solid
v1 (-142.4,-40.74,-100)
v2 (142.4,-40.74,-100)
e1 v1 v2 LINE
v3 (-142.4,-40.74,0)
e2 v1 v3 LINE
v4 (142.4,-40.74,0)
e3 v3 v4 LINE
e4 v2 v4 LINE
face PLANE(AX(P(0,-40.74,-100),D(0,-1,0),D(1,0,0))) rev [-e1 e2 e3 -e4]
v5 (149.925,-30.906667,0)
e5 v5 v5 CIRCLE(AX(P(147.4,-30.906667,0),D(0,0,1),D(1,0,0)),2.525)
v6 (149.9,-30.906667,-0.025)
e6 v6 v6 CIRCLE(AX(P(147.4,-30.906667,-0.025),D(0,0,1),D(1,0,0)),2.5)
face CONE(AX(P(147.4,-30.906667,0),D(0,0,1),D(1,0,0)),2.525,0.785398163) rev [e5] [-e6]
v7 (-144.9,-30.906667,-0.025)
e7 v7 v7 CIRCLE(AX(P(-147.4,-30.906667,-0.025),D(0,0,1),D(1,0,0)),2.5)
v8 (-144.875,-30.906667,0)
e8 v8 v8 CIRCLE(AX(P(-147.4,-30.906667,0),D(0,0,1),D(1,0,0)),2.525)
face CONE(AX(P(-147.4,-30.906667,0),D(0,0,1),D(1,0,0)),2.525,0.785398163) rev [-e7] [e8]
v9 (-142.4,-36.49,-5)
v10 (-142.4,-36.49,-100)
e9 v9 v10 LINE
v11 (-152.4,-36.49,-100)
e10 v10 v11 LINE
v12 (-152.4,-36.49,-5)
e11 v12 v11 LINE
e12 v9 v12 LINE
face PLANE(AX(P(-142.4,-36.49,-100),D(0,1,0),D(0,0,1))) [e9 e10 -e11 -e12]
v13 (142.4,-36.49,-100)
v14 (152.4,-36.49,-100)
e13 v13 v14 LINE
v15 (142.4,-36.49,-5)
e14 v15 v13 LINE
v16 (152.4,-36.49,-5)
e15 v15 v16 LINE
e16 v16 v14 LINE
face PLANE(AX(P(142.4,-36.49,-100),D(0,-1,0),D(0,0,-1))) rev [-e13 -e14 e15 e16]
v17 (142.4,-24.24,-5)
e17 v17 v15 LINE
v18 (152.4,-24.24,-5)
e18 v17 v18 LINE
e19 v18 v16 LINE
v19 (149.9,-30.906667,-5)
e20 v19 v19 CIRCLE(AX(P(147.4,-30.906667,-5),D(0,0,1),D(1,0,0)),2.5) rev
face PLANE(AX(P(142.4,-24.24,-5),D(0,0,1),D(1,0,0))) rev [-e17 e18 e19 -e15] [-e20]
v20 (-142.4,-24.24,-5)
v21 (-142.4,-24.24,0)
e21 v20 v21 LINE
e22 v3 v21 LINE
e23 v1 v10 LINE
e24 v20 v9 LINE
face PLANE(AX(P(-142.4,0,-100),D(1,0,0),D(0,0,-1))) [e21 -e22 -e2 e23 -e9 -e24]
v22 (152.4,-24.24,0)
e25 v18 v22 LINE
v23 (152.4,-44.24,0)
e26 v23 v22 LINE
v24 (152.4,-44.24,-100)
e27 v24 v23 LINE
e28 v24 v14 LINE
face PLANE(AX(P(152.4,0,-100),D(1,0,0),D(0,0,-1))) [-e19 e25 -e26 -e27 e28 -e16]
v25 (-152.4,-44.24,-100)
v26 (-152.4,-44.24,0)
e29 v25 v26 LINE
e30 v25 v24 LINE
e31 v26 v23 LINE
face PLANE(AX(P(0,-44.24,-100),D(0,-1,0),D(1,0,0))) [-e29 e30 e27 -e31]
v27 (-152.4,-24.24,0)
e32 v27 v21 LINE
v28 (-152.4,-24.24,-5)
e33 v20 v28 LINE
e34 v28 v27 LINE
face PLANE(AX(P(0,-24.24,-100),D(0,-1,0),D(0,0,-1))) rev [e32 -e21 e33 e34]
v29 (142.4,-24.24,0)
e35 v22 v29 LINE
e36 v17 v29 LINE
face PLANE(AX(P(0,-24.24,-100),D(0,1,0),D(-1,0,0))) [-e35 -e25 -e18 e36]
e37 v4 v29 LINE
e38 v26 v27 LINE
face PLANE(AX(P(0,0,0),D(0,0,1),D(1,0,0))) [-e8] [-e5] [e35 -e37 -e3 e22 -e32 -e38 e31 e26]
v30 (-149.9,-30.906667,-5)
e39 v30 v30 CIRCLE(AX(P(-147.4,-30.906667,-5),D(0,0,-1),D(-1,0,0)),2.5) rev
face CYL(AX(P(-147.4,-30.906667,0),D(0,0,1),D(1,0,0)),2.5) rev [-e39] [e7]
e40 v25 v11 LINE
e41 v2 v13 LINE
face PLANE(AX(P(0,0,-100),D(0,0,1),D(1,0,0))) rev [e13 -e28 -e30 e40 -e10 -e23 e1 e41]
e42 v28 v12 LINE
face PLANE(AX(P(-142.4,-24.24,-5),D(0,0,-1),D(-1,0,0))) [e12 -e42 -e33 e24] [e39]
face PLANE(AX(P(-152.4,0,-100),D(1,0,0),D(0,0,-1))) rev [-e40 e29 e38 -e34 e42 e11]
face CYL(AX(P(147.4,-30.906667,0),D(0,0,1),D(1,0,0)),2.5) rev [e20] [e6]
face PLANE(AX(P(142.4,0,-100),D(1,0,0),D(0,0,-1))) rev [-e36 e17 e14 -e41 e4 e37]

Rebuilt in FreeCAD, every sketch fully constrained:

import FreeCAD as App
import Part
import Sketcher
Q = App.Units.Quantity

doc = App.newDocument("Part")
body = doc.addObject("PartDesign::Body", "Body")

# Sketch on XY plane
sketch1 = body.newObject("Sketcher::SketchObject", "Sketch")
sketch1.AttachmentSupport = (doc.getObject("XY_Plane"), [""])
sketch1.MapMode = "FlatFace"
sketch1.addGeometry(Part.LineSegment(App.Vector(-142, -41, 0), App.Vector(-142, -24, 0)), False)
sketch1.addGeometry(Part.LineSegment(App.Vector(-142, -24, 0), App.Vector(-152, -24, 0)), False)
sketch1.addGeometry(Part.LineSegment(App.Vector(-152, -24, 0), App.Vector(-152, -44, 0)), False)
sketch1.addGeometry(Part.LineSegment(App.Vector(-152, -44, 0), App.Vector(152, -44, 0)), False)
sketch1.addGeometry(Part.LineSegment(App.Vector(152, -44, 0), App.Vector(152, -24, 0)), False)
sketch1.addGeometry(Part.LineSegment(App.Vector(152, -24, 0), App.Vector(142, -24, 0)), False)
sketch1.addGeometry(Part.LineSegment(App.Vector(142, -24, 0), App.Vector(142, -41, 0)), False)
sketch1.addGeometry(Part.LineSegment(App.Vector(142, -41, 0), App.Vector(-142, -41, 0)), False)
sketch1.addConstraint(Sketcher.Constraint("Coincident", 0, 2, 1, 1))
sketch1.addConstraint(Sketcher.Constraint("Coincident", 1, 2, 2, 1))
sketch1.addConstraint(Sketcher.Constraint("Coincident", 2, 2, 3, 1))
sketch1.addConstraint(Sketcher.Constraint("Coincident", 3, 2, 4, 1))
sketch1.addConstraint(Sketcher.Constraint("Coincident", 4, 2, 5, 1))
sketch1.addConstraint(Sketcher.Constraint("Coincident", 5, 2, 6, 1))
sketch1.addConstraint(Sketcher.Constraint("Coincident", 6, 2, 7, 1))
sketch1.addConstraint(Sketcher.Constraint("Coincident", 7, 2, 0, 1))
sketch1.addConstraint(Sketcher.Constraint("Vertical", 0))
sketch1.addConstraint(Sketcher.Constraint("Horizontal", 1))
sketch1.addConstraint(Sketcher.Constraint("Vertical", 2))
sketch1.addConstraint(Sketcher.Constraint("Horizontal", 3))
sketch1.addConstraint(Sketcher.Constraint("Vertical", 4))
sketch1.addConstraint(Sketcher.Constraint("Horizontal", 5))
sketch1.addConstraint(Sketcher.Constraint("Vertical", 6))
sketch1.addConstraint(Sketcher.Constraint("Horizontal", 7))
sketch1.addConstraint(Sketcher.Constraint("Symmetric", 1, 2, 4, 2, -2))
sketch1.addConstraint(Sketcher.Constraint("Equal", 1, 5))
sketch1.addConstraint(Sketcher.Constraint("DistanceX", 1, 2, 1, 1, Q("10 mm")))
sketch1.addConstraint(Sketcher.Constraint("DistanceY", 2, 2, 2, 1, Q("20 mm")))
sketch1.addConstraint(Sketcher.Constraint("DistanceX", 3, 1, 3, 2, Q("304.8 mm")))
sketch1.addConstraint(Sketcher.Constraint("DistanceY", 0, 1, 0, 2, Q("16.5 mm")))
sketch1.addConstraint(Sketcher.Constraint("DistanceY", 0, 2, -1, 1, Q("24.24 mm")))
pad1 = body.newObject("PartDesign::Pad", "Pad")
pad1.Profile = sketch1
pad1.Length = 100
pad1.Reversed = True

# Sketch on XY plane
sketch2 = body.newObject("Sketcher::SketchObject", "Sketch001")
sketch2.AttachmentSupport = (doc.getObject("XY_Plane"), [""])
sketch2.MapMode = "FlatFace"
sketch2.addGeometry(Part.Circle(App.Vector(-147.4, -30.9, 0), App.Vector(0, 0, 1), 2.5), False)
sketch2.addGeometry(Part.Circle(App.Vector(-147.4, -37.6, 0), App.Vector(0, 0, 1), 2.5), False)
sketch2.addGeometry(Part.Circle(App.Vector(147.4, -30.9, 0), App.Vector(0, 0, 1), 2.5), False)
sketch2.addGeometry(Part.Circle(App.Vector(147.4, -37.6, 0), App.Vector(0, 0, 1), 2.5), False)
sketch2.addConstraint(Sketcher.Constraint("Equal", 0, 1))
sketch2.addConstraint(Sketcher.Constraint("Equal", 1, 2))
sketch2.addConstraint(Sketcher.Constraint("Equal", 2, 3))
sketch2.addConstraint(Sketcher.Constraint("Symmetric", 0, 3, 2, 3, -2))
sketch2.addConstraint(Sketcher.Constraint("Symmetric", 1, 3, 3, 3, -2))
sketch2.addConstraint(Sketcher.Constraint("Vertical", 0, 3, 1, 3))
sketch2.addConstraint(Sketcher.Constraint("Diameter", 0, Q("5 mm")))
sketch2.addConstraint(Sketcher.Constraint("DistanceX", 0, 3, -1, 1, Q("147.4 mm")))
sketch2.addConstraint(Sketcher.Constraint("DistanceY", 0, 3, -1, 1, Q("30.906667 mm")))
sketch2.addConstraint(Sketcher.Constraint("DistanceY", 1, 3, -1, 1, Q("37.573333 mm")))
doc.recompute()
hole = body.newObject("PartDesign::Hole", "Hole")
hole.Profile = sketch2
hole.ThreadType = "None"
hole.Diameter = 5
hole.DepthType = "Dimension"
hole.Depth = 100
hole.DrillPoint = "Angled"
hole.DrillPointAngle = 118
hole.HoleCutType = "Countersink"
hole.HoleCutDiameter = 5.05
hole.HoleCutCountersinkAngle = 90

# Sketch on XY plane
sketch3 = body.newObject("Sketcher::SketchObject", "Sketch002")
sketch3.AttachmentSupport = (doc.getObject("XY_Plane"), [""])
sketch3.MapMode = "FlatFace"
sketch3.AttachmentOffset = App.Placement(App.Vector(0, 0, -100), App.Rotation())
sketch3.addGeometry(Part.Circle(App.Vector(-147.4, -37.6, 0), App.Vector(0, 0, 1), 2.5), False)
sketch3.addConstraint(Sketcher.Constraint("Diameter", 0, Q("5 mm")))
sketch3.addConstraint(Sketcher.Constraint("DistanceX", 0, 3, -1, 1, Q("147.4 mm")))
sketch3.addConstraint(Sketcher.Constraint("DistanceY", 0, 3, -1, 1, Q("37.573333 mm")))
pad2 = body.newObject("PartDesign::Pad", "Pad001")
pad2.Profile = sketch3
pad2.Length = 100

# Sketch on XY plane
sketch4 = body.newObject("Sketcher::SketchObject", "Sketch003")
sketch4.AttachmentSupport = (doc.getObject("XY_Plane"), [""])
sketch4.MapMode = "FlatFace"
sketch4.addGeometry(Part.LineSegment(App.Vector(-151, -35, 0), App.Vector(-151, -41, 0)), False)
sketch4.addGeometry(Part.LineSegment(App.Vector(-151, -41, 0), App.Vector(-144, -41, 0)), False)
sketch4.addGeometry(Part.LineSegment(App.Vector(-144, -41, 0), App.Vector(-144, -35, 0)), False)
sketch4.addGeometry(Part.LineSegment(App.Vector(-144, -35, 0), App.Vector(-151, -35, 0)), False)
sketch4.addConstraint(Sketcher.Constraint("Coincident", 0, 2, 1, 1))
sketch4.addConstraint(Sketcher.Constraint("Coincident", 1, 2, 2, 1))
sketch4.addConstraint(Sketcher.Constraint("Coincident", 2, 2, 3, 1))
sketch4.addConstraint(Sketcher.Constraint("Coincident", 3, 2, 0, 1))
sketch4.addConstraint(Sketcher.Constraint("Vertical", 0))
sketch4.addConstraint(Sketcher.Constraint("Horizontal", 1))
sketch4.addConstraint(Sketcher.Constraint("Vertical", 2))
sketch4.addConstraint(Sketcher.Constraint("Horizontal", 3))
sketch4.addConstraint(Sketcher.Constraint("DistanceX", 1, 1, 1, 2, Q("7.604101 mm")))
sketch4.addConstraint(Sketcher.Constraint("DistanceY", 0, 2, 0, 1, Q("6.322976 mm")))
sketch4.addConstraint(Sketcher.Constraint("DistanceY", 0, 2, -1, 1, Q("40.869139 mm")))
sketch4.addConstraint(Sketcher.Constraint("DistanceX", 0, 2, -1, 1, Q("151.119363 mm")))
pad3 = body.newObject("PartDesign::Pad", "Pad002")
pad3.Profile = sketch4
pad3.Length = 10
pad3.Reversed = True
doc.recompute()

mirrored = body.newObject("PartDesign::Mirrored", "Mirrored")
mirrored.Originals = [pad2]
mirrored.MirrorPlane = (doc.getObject("YZ_Plane"), [""])
body.Tip = mirrored

# Sketch on YZ plane
sketch5 = body.newObject("Sketcher::SketchObject", "Sketch004")
sketch5.AttachmentSupport = (doc.getObject("YZ_Plane"), [""])
sketch5.MapMode = "FlatFace"
sketch5.AttachmentOffset = App.Placement(App.Vector(0, 0, 152.4), App.Rotation())
sketch5.addGeometry(Part.LineSegment(App.Vector(-24, -5, 0), App.Vector(-36, -5, 0)), False)
sketch5.addGeometry(Part.LineSegment(App.Vector(-36, -5, 0), App.Vector(-36, -100, 0)), False)
sketch5.addGeometry(Part.LineSegment(App.Vector(-36, -100, 0), App.Vector(-24, -100, 0)), False)
sketch5.addGeometry(Part.LineSegment(App.Vector(-24, -100, 0), App.Vector(-24, -5, 0)), False)
sketch5.addConstraint(Sketcher.Constraint("Coincident", 0, 2, 1, 1))
sketch5.addConstraint(Sketcher.Constraint("Coincident", 1, 2, 2, 1))
sketch5.addConstraint(Sketcher.Constraint("Coincident", 2, 2, 3, 1))
sketch5.addConstraint(Sketcher.Constraint("Coincident", 3, 2, 0, 1))
sketch5.addConstraint(Sketcher.Constraint("Horizontal", 0))
sketch5.addConstraint(Sketcher.Constraint("Vertical", 1))
sketch5.addConstraint(Sketcher.Constraint("Horizontal", 2))
sketch5.addConstraint(Sketcher.Constraint("Vertical", 3))
sketch5.addConstraint(Sketcher.Constraint("DistanceY", 1, 2, 1, 1, Q("95 mm")))
sketch5.addConstraint(Sketcher.Constraint("DistanceY", 0, 2, -1, 1, Q("5 mm")))
sketch5.addConstraint(Sketcher.Constraint("DistanceX", 0, 2, 0, 1, Q("12.25 mm")))
sketch5.addConstraint(Sketcher.Constraint("DistanceX", 0, 2, -1, 1, Q("36.49 mm")))
pocket1 = body.newObject("PartDesign::Pocket", "Pocket")
pocket1.Profile = sketch5
pocket1.Length = 10
doc.recompute()

mirrored2 = body.newObject("PartDesign::Mirrored", "Mirrored001")
mirrored2.Originals = [pocket1]
mirrored2.MirrorPlane = (doc.getObject("YZ_Plane"), [""])
body.Tip = mirrored2

# Sketch on XY plane
sketch6 = body.newObject("Sketcher::SketchObject", "Sketch005")
sketch6.AttachmentSupport = (doc.getObject("XY_Plane"), [""])
sketch6.MapMode = "FlatFace"
sketch6.addGeometry(Part.LineSegment(App.Vector(144, -34, 0), App.Vector(144, -41, 0)), False)
sketch6.addGeometry(Part.LineSegment(App.Vector(144, -41, 0), App.Vector(151, -41, 0)), False)
sketch6.addGeometry(Part.LineSegment(App.Vector(151, -41, 0), App.Vector(151, -34, 0)), False)
sketch6.addGeometry(Part.LineSegment(App.Vector(151, -34, 0), App.Vector(144, -34, 0)), False)
sketch6.addConstraint(Sketcher.Constraint("Coincident", 0, 2, 1, 1))
sketch6.addConstraint(Sketcher.Constraint("Coincident", 1, 2, 2, 1))
sketch6.addConstraint(Sketcher.Constraint("Coincident", 2, 2, 3, 1))
sketch6.addConstraint(Sketcher.Constraint("Coincident", 3, 2, 0, 1))
sketch6.addConstraint(Sketcher.Constraint("Vertical", 0))
sketch6.addConstraint(Sketcher.Constraint("Horizontal", 1))
sketch6.addConstraint(Sketcher.Constraint("Vertical", 2))
sketch6.addConstraint(Sketcher.Constraint("Horizontal", 3))
sketch6.addConstraint(Sketcher.Constraint("DistanceY", 0, 2, 0, 1, Q("6.843691 mm")))
sketch6.addConstraint(Sketcher.Constraint("DistanceX", 1, 1, 1, 2, Q("7.319774 mm")))
sketch6.addConstraint(Sketcher.Constraint("DistanceY", 0, 2, -1, 1, Q("41.215581 mm")))
sketch6.addConstraint(Sketcher.Constraint("DistanceX", -1, 1, 0, 2, Q("143.897472 mm")))
pad4 = body.newObject("PartDesign::Pad", "Pad003")
pad4.Profile = sketch6
pad4.Length = 5
pad4.Reversed = True

doc.recompute()
